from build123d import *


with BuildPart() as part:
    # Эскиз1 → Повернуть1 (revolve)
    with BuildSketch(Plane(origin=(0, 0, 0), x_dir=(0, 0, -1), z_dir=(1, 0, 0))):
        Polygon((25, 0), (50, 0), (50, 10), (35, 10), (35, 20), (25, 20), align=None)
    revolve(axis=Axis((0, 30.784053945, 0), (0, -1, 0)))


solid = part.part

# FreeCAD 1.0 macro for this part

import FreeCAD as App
import Part
import Sketcher

V = App.Vector
Q = App.Units.Quantity


def add_polygon(sketch, points):
    """Adds a closed chain of lines whose ends are joined by coincident constraints."""
    first, n = sketch.GeometryCount, len(points)
    for a, b in zip(points, points[1:] + points[:1]):
        sketch.addGeometry(Part.LineSegment(App.Vector(*a, 0), App.Vector(*b, 0)), False)
    for i in range(n):
        sketch.addConstraint(Sketcher.Constraint("Coincident", first + i, 2, first + (i + 1) % n, 1))

doc = App.newDocument("Part")
body = doc.addObject("PartDesign::Body", "Body")

# Sketch on YZ plane
sketch1 = body.newObject("Sketcher::SketchObject", "Sketch")
sketch1.AttachmentSupport = (doc.getObject("YZ_Plane"), [""])
sketch1.MapMode = "FlatFace"
add_polygon(sketch1, [(0, -25), (0, -50), (10, -50), (10, -35), (20, -35), (20, -25)])  # lines 0-5
sketch1.addConstraint(Sketcher.Constraint("Vertical", 0))
sketch1.addConstraint(Sketcher.Constraint("Horizontal", 1))
sketch1.addConstraint(Sketcher.Constraint("Vertical", 2))
sketch1.addConstraint(Sketcher.Constraint("Horizontal", 3))
sketch1.addConstraint(Sketcher.Constraint("Vertical", 4))
sketch1.addConstraint(Sketcher.Constraint("Horizontal", 5))
sketch1.addConstraint(Sketcher.Constraint("PointOnObject", 0, 2, -2))
sketch1.addConstraint(Sketcher.Constraint("Equal", 1, 3))
sketch1.addConstraint(Sketcher.Constraint("Equal", 3, 4))
sketch1.addConstraint(Sketcher.Constraint("DistanceX", 1, 1, 1, 2, Q("10 mm")))
sketch1.addConstraint(Sketcher.Constraint("DistanceY", 0, 2, 0, 1, Q("25 mm")))
sketch1.addConstraint(Sketcher.Constraint("DistanceY", 0, 2, -1, 1, Q("50 mm")))
revolution = body.newObject("PartDesign::Revolution", "Revolution")
revolution.Profile = sketch1
revolution.ReferenceAxis = (sketch1, ["H_Axis"])
revolution.Angle = 360

doc.recompute()
